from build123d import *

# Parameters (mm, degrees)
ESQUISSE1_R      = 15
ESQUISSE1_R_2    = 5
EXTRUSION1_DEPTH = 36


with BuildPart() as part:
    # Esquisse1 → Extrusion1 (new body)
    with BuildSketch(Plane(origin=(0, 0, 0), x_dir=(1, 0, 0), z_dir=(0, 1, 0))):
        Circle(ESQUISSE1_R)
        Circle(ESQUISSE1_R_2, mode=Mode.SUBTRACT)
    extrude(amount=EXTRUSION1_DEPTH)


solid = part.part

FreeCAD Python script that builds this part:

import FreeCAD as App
import Part
import Sketcher

V = App.Vector
Q = App.Units.Quantity

doc = App.newDocument("Part")
params = doc.addObject("Spreadsheet::Sheet", "Params")
for row, (alias, value) in enumerate([
    ("sketch1_diameter", "30 mm"),
    ("sketch1_diameter2", "10 mm"),
    ("pad1_length", "36 mm"),
], start=1):
    params.set(f"A{row}", alias)
    params.set(f"B{row}", "=" + value)
    params.setAlias(f"B{row}", alias)

body = doc.addObject("PartDesign::Body", "Body")

# Sketch on XZ plane
sketch1 = body.newObject("Sketcher::SketchObject", "Sketch")
sketch1.AttachmentSupport = (doc.getObject("XZ_Plane"), [""])
sketch1.MapMode = "FlatFace"
sketch1.addGeometry([
    Part.Circle(V(0, 0, 0), V(0, 0, 1), 15),
    Part.Circle(V(0, 0, 0), V(0, 0, 1), 5),
], False)
sketch1.addConstraint([
    Sketcher.Constraint("Coincident", 0, 3, -1, 1),
    Sketcher.Constraint("Coincident", 1, 3, -1, 1),
    Sketcher.Constraint("Diameter", 0, Q("30 mm")),
    Sketcher.Constraint("Diameter", 1, Q("10 mm")),
])
sketch1.setExpression("Constraints[2]", "Params.sketch1_diameter")
sketch1.setExpression("Constraints[3]", "Params.sketch1_diameter2")
pad1 = body.newObject("PartDesign::Pad", "Pad")
pad1.Profile = sketch1
pad1.setExpression("Length", "Params.pad1_length")
pad1.Reversed = True

doc.recompute()
